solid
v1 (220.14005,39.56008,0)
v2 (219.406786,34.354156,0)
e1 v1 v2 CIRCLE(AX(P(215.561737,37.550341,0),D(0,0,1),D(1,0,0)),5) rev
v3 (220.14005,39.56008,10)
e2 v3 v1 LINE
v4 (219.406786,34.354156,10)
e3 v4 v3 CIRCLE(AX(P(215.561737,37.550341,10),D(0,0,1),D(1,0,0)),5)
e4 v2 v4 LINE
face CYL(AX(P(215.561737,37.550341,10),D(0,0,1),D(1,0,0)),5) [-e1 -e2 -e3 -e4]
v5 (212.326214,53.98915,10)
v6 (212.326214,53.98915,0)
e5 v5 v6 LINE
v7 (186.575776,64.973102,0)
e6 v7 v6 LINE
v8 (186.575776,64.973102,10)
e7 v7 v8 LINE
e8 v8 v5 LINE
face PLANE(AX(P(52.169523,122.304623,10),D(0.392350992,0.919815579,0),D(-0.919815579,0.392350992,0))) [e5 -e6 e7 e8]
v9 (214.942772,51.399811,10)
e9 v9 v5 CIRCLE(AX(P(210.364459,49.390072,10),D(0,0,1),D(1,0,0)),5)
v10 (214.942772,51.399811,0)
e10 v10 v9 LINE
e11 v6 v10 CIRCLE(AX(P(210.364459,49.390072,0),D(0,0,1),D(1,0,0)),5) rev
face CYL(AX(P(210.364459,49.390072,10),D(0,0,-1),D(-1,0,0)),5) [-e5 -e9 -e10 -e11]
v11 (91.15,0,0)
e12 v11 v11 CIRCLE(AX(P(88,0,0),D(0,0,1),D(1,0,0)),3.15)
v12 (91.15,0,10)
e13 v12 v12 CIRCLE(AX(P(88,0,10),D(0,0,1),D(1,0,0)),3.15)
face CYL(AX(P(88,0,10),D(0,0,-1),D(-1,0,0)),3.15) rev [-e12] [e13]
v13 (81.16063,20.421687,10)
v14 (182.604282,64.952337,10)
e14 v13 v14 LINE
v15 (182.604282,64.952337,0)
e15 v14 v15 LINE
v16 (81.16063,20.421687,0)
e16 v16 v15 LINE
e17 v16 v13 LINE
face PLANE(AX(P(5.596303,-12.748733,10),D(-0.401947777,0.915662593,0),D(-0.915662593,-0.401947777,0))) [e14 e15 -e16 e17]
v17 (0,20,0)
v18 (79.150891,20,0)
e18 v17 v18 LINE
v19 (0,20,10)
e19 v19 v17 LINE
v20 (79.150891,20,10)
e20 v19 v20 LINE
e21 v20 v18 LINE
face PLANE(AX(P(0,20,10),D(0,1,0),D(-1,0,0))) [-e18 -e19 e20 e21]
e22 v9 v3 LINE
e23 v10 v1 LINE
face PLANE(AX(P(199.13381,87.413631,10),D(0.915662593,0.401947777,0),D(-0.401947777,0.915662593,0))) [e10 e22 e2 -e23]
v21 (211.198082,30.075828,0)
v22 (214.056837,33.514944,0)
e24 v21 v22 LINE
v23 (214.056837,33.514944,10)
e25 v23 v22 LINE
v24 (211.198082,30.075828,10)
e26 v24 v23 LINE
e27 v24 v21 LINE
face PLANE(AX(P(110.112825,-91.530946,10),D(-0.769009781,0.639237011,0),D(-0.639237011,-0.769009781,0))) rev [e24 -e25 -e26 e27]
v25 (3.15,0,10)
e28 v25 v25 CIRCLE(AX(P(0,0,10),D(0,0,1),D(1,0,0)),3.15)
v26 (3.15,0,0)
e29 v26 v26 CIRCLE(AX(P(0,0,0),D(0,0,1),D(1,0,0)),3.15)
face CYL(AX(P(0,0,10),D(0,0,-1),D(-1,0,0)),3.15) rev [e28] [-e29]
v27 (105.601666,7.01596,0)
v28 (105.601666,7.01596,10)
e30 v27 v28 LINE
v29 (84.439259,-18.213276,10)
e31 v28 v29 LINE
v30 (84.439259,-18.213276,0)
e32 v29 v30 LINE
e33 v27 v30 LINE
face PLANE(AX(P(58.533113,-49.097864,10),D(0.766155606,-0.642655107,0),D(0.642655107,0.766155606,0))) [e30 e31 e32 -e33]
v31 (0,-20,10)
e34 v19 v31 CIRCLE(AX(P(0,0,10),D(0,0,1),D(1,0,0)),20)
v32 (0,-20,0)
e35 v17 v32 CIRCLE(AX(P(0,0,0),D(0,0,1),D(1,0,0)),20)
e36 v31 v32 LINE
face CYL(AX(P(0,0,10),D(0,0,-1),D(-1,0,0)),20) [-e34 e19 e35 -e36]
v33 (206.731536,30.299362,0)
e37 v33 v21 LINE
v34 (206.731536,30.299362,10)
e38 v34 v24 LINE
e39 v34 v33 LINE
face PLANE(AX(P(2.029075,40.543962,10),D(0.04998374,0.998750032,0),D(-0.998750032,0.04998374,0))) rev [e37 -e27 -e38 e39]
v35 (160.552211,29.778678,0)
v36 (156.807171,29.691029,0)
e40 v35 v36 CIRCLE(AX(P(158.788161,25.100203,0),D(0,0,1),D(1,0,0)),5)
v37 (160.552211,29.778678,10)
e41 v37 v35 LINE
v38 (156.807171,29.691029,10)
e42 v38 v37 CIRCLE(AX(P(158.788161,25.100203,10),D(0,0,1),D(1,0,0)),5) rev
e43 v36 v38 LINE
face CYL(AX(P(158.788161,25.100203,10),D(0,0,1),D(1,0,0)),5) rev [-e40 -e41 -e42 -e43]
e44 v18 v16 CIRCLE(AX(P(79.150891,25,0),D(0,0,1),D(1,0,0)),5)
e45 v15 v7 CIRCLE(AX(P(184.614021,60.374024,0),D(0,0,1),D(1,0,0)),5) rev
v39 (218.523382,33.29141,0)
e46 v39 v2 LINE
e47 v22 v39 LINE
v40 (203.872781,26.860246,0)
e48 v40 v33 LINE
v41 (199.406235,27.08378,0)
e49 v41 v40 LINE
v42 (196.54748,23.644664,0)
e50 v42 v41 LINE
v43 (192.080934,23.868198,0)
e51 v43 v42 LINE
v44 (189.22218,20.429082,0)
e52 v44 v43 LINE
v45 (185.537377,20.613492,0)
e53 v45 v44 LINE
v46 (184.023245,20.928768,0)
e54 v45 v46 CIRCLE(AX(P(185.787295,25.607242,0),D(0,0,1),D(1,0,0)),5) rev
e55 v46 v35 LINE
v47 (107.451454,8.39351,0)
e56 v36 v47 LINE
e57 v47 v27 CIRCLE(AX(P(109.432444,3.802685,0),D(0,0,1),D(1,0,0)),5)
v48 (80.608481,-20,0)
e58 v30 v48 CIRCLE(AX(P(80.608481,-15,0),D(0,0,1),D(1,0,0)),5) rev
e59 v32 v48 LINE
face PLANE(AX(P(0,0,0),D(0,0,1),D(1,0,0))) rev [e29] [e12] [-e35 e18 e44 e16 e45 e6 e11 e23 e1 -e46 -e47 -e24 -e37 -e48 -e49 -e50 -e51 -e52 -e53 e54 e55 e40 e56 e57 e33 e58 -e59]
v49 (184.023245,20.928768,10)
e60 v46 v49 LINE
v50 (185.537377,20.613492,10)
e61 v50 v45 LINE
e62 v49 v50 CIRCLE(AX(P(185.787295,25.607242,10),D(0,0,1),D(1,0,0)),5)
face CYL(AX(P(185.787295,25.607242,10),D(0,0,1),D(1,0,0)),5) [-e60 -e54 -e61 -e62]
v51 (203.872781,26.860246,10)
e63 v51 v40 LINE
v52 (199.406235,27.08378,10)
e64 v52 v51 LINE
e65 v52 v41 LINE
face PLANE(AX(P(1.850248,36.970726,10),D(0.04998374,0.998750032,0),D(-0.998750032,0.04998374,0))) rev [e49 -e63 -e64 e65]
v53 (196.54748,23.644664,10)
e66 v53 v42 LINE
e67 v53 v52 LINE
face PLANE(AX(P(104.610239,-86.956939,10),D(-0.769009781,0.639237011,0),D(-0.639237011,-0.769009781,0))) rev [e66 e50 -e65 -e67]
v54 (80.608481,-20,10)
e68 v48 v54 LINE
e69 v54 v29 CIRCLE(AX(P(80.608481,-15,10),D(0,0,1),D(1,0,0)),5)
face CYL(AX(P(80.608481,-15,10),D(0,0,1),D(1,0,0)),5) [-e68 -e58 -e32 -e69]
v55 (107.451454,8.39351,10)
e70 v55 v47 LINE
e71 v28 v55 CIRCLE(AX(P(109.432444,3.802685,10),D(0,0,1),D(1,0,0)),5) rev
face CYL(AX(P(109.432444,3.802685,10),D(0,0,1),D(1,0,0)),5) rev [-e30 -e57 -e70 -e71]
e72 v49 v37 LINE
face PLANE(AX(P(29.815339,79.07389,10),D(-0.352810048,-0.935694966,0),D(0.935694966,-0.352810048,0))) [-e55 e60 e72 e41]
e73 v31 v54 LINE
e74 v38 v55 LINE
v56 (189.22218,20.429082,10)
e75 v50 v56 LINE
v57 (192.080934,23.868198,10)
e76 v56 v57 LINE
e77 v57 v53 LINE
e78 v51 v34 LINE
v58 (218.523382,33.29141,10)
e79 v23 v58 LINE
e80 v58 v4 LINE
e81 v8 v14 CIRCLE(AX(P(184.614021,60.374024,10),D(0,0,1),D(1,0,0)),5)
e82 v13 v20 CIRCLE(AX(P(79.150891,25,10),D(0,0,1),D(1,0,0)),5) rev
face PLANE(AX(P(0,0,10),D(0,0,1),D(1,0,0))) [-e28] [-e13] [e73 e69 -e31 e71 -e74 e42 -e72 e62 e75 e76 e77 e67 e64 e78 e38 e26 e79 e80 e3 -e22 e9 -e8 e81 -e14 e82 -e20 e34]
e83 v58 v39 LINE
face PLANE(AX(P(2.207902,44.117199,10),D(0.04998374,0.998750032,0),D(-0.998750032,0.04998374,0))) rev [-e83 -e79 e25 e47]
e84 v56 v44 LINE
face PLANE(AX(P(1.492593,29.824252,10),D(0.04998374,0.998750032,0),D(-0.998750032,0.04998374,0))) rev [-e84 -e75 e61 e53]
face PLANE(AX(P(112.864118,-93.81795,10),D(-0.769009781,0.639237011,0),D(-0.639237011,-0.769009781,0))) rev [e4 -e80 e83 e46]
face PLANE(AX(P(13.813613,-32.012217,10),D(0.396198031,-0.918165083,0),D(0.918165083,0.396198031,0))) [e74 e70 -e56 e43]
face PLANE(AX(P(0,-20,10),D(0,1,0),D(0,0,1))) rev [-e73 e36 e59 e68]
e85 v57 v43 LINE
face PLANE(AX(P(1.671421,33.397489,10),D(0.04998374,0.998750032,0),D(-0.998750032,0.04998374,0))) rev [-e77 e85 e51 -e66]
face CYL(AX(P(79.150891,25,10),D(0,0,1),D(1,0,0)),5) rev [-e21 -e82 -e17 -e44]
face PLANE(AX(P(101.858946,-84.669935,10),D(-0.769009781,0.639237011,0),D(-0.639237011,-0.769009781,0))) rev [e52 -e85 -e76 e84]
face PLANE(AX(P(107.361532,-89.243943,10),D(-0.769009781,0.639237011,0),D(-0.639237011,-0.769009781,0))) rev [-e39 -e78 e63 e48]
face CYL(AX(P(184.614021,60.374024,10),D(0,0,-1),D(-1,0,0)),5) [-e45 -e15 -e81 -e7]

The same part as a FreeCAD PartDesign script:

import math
import FreeCAD as App
import Part
import Sketcher
Q = App.Units.Quantity


def edges_at(feature, points):
    """Names of the edges that pass closest to the given points."""
    edges = feature.Shape.Edges
    near = lambda p: min(range(len(edges)), key=lambda i: edges[i].distToShape(Part.Vertex(*p))[0])
    return sorted({f"Edge{near(p) + 1}" for p in points})

doc = App.newDocument("Part")
body = doc.addObject("PartDesign::Body", "Body")

# Sketch on XY plane
sketch1 = body.newObject("Sketcher::SketchObject", "Sketch")
sketch1.AttachmentSupport = (doc.getObject("XY_Plane"), [""])
sketch1.MapMode = "FlatFace"
sketch1.addGeometry(Part.LineSegment(App.Vector(80.2, 20, 0), App.Vector(0, 20, 0)), False)
sketch1.addGeometry(Part.ArcOfCircle(Part.Circle(App.Vector(0, 0, 0), App.Vector(0, 0, 1), 20), math.radians(90), math.radians(270)), False)
sketch1.addGeometry(Part.LineSegment(App.Vector(0, -20, 0), App.Vector(82.9, -20, 0)), False)
sketch1.addGeometry(Part.LineSegment(App.Vector(82.9, -20, 0), App.Vector(106.4, 7.9, 0)), False)
sketch1.addGeometry(Part.LineSegment(App.Vector(106.4, 7.9, 0), App.Vector(158.7, 30.5, 0)), False)
sketch1.addGeometry(Part.LineSegment(App.Vector(158.7, 30.5, 0), App.Vector(184.8, 20.7, 0)), False)
sketch1.addGeometry(Part.LineSegment(App.Vector(184.8, 20.7, 0), App.Vector(189.2, 20.4, 0)), False)
sketch1.addGeometry(Part.LineSegment(App.Vector(189.2, 20.4, 0), App.Vector(192.1, 23.9, 0)), False)
sketch1.addGeometry(Part.LineSegment(App.Vector(192.1, 23.9, 0), App.Vector(196.5, 23.6, 0)), False)
sketch1.addGeometry(Part.LineSegment(App.Vector(196.5, 23.6, 0), App.Vector(199.4, 27.1, 0)), False)
sketch1.addGeometry(Part.LineSegment(App.Vector(199.4, 27.1, 0), App.Vector(203.9, 26.9, 0)), False)
sketch1.addGeometry(Part.LineSegment(App.Vector(203.9, 26.9, 0), App.Vector(206.7, 30.3, 0)), False)
sketch1.addGeometry(Part.LineSegment(App.Vector(206.7, 30.3, 0), App.Vector(211.2, 30.1, 0)), False)
sketch1.addGeometry(Part.LineSegment(App.Vector(211.2, 30.1, 0), App.Vector(214.1, 33.5, 0)), False)
sketch1.addGeometry(Part.LineSegment(App.Vector(214.1, 33.5, 0), App.Vector(218.5, 33.3, 0)), False)
sketch1.addGeometry(Part.LineSegment(App.Vector(218.5, 33.3, 0), App.Vector(221.4, 36.7, 0)), False)
sketch1.addGeometry(Part.LineSegment(App.Vector(221.4, 36.7, 0), App.Vector(214.1, 53.2, 0)), False)
sketch1.addGeometry(Part.LineSegment(App.Vector(214.1, 53.2, 0), App.Vector(184.6, 65.8, 0)), False)
sketch1.addGeometry(Part.LineSegment(App.Vector(184.6, 65.8, 0), App.Vector(80.2, 20, 0)), False)
sketch1.addGeometry(Part.Circle(App.Vector(0, 0, 0), App.Vector(0, 0, 1), 3.1), False)
sketch1.addGeometry(Part.Circle(App.Vector(88, 0, 0), App.Vector(0, 0, 1), 3.1), False)
sketch1.addConstraint(Sketcher.Constraint("Tangent", 0, 2, 1, 1))
sketch1.addConstraint(Sketcher.Constraint("Tangent", 1, 2, 2, 1))
sketch1.addConstraint(Sketcher.Constraint("Coincident", 2, 2, 3, 1))
sketch1.addConstraint(Sketcher.Constraint("Coincident", 3, 2, 4, 1))
sketch1.addConstraint(Sketcher.Constraint("Coincident", 4, 2, 5, 1))
sketch1.addConstraint(Sketcher.Constraint("Coincident", 5, 2, 6, 1))
sketch1.addConstraint(Sketcher.Constraint("Coincident", 6, 2, 7, 1))
sketch1.addConstraint(Sketcher.Constraint("Coincident", 7, 2, 8, 1))
sketch1.addConstraint(Sketcher.Constraint("Coincident", 8, 2, 9, 1))
sketch1.addConstraint(Sketcher.Constraint("Coincident", 9, 2, 10, 1))
sketch1.addConstraint(Sketcher.Constraint("Coincident", 10, 2, 11, 1))
sketch1.addConstraint(Sketcher.Constraint("Coincident", 11, 2, 12, 1))
sketch1.addConstraint(Sketcher.Constraint("Coincident", 12, 2, 13, 1))
sketch1.addConstraint(Sketcher.Constraint("Coincident", 13, 2, 14, 1))
sketch1.addConstraint(Sketcher.Constraint("Coincident", 14, 2, 15, 1))
sketch1.addConstraint(Sketcher.Constraint("Coincident", 15, 2, 16, 1))
sketch1.addConstraint(Sketcher.Constraint("Coincident", 16, 2, 17, 1))
sketch1.addConstraint(Sketcher.Constraint("Coincident", 17, 2, 18, 1))
sketch1.addConstraint(Sketcher.Constraint("Coincident", 18, 2, 0, 1))
sketch1.addConstraint(Sketcher.Constraint("Horizontal", 0))
sketch1.addConstraint(Sketcher.Constraint("Horizontal", 2))
sketch1.addConstraint(Sketcher.Constraint("Coincident", 1, 3, -1, 1))
sketch1.addConstraint(Sketcher.Constraint("Coincident", 19, 3, -1, 1))
sketch1.addConstraint(Sketcher.Constraint("Equal", 19, 20))
sketch1.addConstraint(Sketcher.Constraint("PointOnObject", 20, 3, -1))
sketch1.addConstraint(Sketcher.Constraint("Parallel", 6, 8))
sketch1.addConstraint(Sketcher.Constraint("Parallel", 7, 9))
sketch1.addConstraint(Sketcher.Constraint("Parallel", 8, 10))
sketch1.addConstraint(Sketcher.Constraint("Parallel", 9, 11))
sketch1.addConstraint(Sketcher.Constraint("Parallel", 10, 12))
sketch1.addConstraint(Sketcher.Constraint("Parallel", 11, 13))
sketch1.addConstraint(Sketcher.Constraint("Parallel", 12, 14))
sketch1.addConstraint(Sketcher.Constraint("Parallel", 13, 15))
sketch1.addConstraint(Sketcher.Constraint("Perpendicular", 16, 18))
sketch1.addConstraint(Sketcher.Constraint("Equal", 6, 7))
sketch1.addConstraint(Sketcher.Constraint("Equal", 7, 8))
sketch1.addConstraint(Sketcher.Constraint("Equal", 8, 9))
sketch1.addConstraint(Sketcher.Constraint("Equal", 9, 10))
sketch1.addConstraint(Sketcher.Constraint("Equal", 10, 11))
sketch1.addConstraint(Sketcher.Constraint("Equal", 11, 12))
sketch1.addConstraint(Sketcher.Constraint("Equal", 12, 13))
sketch1.addConstraint(Sketcher.Constraint("Equal", 13, 14))
sketch1.addConstraint(Sketcher.Constraint("Equal", 14, 15))
sketch1.addConstraint(Sketcher.Constraint("Radius", 1, 20.0))
sketch1.addConstraint(Sketcher.Constraint("Diameter", 19, 6.3))
sketch1.addConstraint(Sketcher.Constraint("Distance", 16, 18.0))
sketch1.addConstraint(Sketcher.Constraint("Distance", 18, 114.0))
sketch1.addConstraint(Sketcher.Constraint("DistanceX", 0, 2, 0, 1, 80.2))
sketch1.addConstraint(Sketcher.Constraint("DistanceX", -1, 1, 20, 3, 88.0))
sketch1.addConstraint(Sketcher.Constraint("Angle", 16, Q("113.7 deg")))
sketch1.addConstraint(Sketcher.Constraint("Distance", 4, 56.96))
sketch1.addConstraint(Sketcher.Constraint("DistanceX", 17, 2, 11, 2, 22.146))
sketch1.addConstraint(Sketcher.Constraint("DistanceX", -1, 1, 3, 2, 106.363302))
sketch1.addConstraint(Sketcher.Constraint("DistanceY", -1, 1, 4, 2, 30.491401))
sketch1.addConstraint(Sketcher.Constraint("DistanceX", 5, 2, 7, 2, 7.325301))
sketch1.addConstraint(Sketcher.Constraint("DistanceY", 6, 2, 9, 2, 6.654699))
sketch1.addConstraint(Sketcher.Constraint("DistanceY", 10, 2, 17, 2, 38.961801))
sketch1.addConstraint(Sketcher.Constraint("DistanceX", 2, 1, 2, 2, 82.940546))
sketch1.addConstraint(Sketcher.Constraint("DistanceY", -1, 1, 3, 2, 7.923961))
sketch1.addConstraint(Sketcher.Constraint("DistanceX", -1, 1, 6, 2, 189.22218))
pad1 = body.newObject("PartDesign::Pad", "Pad")
pad1.Profile = sketch1
pad1.Length = 10
doc.recompute()

fillet = body.newObject("PartDesign::Fillet", "Fillet")
fillet.Base = (pad1, edges_at(pad1, [
    (82.941, -20, 5),
    (80.2, 20, 5),
    (184.586, 65.822, 5),
    (214.147, 53.212, 5),
    (221.382, 36.731, 5),
    (184.756, 20.653, 5),
    (158.662, 30.491, 5),
    (106.363, 7.924, 5),
]))
fillet.Radius = 5

doc.recompute()
